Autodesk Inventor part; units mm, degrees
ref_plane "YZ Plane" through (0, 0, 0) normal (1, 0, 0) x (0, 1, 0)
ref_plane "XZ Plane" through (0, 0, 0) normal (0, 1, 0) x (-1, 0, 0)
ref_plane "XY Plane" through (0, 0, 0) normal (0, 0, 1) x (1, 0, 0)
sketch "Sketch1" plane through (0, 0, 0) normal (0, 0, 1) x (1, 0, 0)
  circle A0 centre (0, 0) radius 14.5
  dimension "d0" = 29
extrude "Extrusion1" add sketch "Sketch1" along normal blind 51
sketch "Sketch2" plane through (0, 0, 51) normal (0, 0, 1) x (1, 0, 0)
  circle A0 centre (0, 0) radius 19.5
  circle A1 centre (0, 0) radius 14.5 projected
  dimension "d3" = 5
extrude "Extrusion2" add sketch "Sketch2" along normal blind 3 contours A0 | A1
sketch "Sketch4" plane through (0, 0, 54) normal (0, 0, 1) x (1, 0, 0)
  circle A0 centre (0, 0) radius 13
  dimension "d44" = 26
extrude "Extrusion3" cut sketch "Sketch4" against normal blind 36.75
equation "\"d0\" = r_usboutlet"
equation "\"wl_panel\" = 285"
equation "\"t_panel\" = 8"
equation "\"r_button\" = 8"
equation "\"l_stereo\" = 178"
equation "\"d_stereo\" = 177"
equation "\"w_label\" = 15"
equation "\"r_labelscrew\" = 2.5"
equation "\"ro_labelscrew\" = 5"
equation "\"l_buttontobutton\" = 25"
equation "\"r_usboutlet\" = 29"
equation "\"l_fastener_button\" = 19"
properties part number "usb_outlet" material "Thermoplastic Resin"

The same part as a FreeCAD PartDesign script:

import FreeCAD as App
import Part
import Sketcher

doc = App.newDocument("Part")
params = doc.addObject("Spreadsheet::Sheet", "Params")
for row, (alias, value) in enumerate([
    ("sketch1_diameter", "29 mm"),
    ("pad1_length", "51 mm"),
    ("sketch2_diameter", "39 mm"),
    ("pad2_length", "3 mm"),
    ("sketch3_diameter", "26 mm"),
    ("pocket1_length", "36.75 mm"),
], start=1):
    params.set(f"A{row}", alias)
    params.set(f"B{row}", "=" + value)
    params.setAlias(f"B{row}", alias)

body = doc.addObject("PartDesign::Body", "Body")

sketch1 = body.newObject("Sketcher::SketchObject", "Sketch")
sketch1.AttachmentSupport = (doc.getObject("XY_Plane"), [""])
sketch1.MapMode = "FlatFace"
sketch1.addGeometry(Part.Circle(App.Vector(0, 0, 0), App.Vector(0, 0, 1), 14), False)
sketch1.addConstraint(Sketcher.Constraint("Coincident", 0, 3, -1, 1))
sketch1.addConstraint(Sketcher.Constraint("Diameter", 0, 29.0))
sketch1.setExpression("Constraints[1]", "Params.sketch1_diameter")
pad1 = body.newObject("PartDesign::Pad", "Pad")
pad1.Profile = sketch1
pad1.setExpression("Length", "Params.pad1_length")

sketch2 = body.newObject("Sketcher::SketchObject", "Sketch001")
sketch2.AttachmentSupport = (doc.getObject("XY_Plane"), [""])
sketch2.MapMode = "FlatFace"
sketch2.AttachmentOffset = App.Placement(App.Vector(0, 0, 51), App.Rotation())
sketch2.addGeometry(Part.Circle(App.Vector(0, 0, 0), App.Vector(0, 0, 1), 20), False)
sketch2.addConstraint(Sketcher.Constraint("Coincident", 0, 3, -1, 1))
sketch2.addConstraint(Sketcher.Constraint("Diameter", 0, 39.0))
sketch2.setExpression("Constraints[1]", "Params.sketch2_diameter")
pad2 = body.newObject("PartDesign::Pad", "Pad001")
pad2.Profile = sketch2
pad2.setExpression("Length", "Params.pad2_length")

sketch3 = body.newObject("Sketcher::SketchObject", "Sketch002")
sketch3.AttachmentSupport = (doc.getObject("XY_Plane"), [""])
sketch3.MapMode = "FlatFace"
sketch3.AttachmentOffset = App.Placement(App.Vector(0, 0, 54), App.Rotation())
sketch3.addGeometry(Part.Circle(App.Vector(0, 0, 0), App.Vector(0, 0, 1), 13), False)
sketch3.addConstraint(Sketcher.Constraint("Coincident", 0, 3, -1, 1))
sketch3.addConstraint(Sketcher.Constraint("Diameter", 0, 26.0))
sketch3.setExpression("Constraints[1]", "Params.sketch3_diameter")
pocket1 = body.newObject("PartDesign::Pocket", "Pocket")
pocket1.Profile = sketch3
pocket1.setExpression("Length", "Params.pocket1_length")

doc.recompute()
